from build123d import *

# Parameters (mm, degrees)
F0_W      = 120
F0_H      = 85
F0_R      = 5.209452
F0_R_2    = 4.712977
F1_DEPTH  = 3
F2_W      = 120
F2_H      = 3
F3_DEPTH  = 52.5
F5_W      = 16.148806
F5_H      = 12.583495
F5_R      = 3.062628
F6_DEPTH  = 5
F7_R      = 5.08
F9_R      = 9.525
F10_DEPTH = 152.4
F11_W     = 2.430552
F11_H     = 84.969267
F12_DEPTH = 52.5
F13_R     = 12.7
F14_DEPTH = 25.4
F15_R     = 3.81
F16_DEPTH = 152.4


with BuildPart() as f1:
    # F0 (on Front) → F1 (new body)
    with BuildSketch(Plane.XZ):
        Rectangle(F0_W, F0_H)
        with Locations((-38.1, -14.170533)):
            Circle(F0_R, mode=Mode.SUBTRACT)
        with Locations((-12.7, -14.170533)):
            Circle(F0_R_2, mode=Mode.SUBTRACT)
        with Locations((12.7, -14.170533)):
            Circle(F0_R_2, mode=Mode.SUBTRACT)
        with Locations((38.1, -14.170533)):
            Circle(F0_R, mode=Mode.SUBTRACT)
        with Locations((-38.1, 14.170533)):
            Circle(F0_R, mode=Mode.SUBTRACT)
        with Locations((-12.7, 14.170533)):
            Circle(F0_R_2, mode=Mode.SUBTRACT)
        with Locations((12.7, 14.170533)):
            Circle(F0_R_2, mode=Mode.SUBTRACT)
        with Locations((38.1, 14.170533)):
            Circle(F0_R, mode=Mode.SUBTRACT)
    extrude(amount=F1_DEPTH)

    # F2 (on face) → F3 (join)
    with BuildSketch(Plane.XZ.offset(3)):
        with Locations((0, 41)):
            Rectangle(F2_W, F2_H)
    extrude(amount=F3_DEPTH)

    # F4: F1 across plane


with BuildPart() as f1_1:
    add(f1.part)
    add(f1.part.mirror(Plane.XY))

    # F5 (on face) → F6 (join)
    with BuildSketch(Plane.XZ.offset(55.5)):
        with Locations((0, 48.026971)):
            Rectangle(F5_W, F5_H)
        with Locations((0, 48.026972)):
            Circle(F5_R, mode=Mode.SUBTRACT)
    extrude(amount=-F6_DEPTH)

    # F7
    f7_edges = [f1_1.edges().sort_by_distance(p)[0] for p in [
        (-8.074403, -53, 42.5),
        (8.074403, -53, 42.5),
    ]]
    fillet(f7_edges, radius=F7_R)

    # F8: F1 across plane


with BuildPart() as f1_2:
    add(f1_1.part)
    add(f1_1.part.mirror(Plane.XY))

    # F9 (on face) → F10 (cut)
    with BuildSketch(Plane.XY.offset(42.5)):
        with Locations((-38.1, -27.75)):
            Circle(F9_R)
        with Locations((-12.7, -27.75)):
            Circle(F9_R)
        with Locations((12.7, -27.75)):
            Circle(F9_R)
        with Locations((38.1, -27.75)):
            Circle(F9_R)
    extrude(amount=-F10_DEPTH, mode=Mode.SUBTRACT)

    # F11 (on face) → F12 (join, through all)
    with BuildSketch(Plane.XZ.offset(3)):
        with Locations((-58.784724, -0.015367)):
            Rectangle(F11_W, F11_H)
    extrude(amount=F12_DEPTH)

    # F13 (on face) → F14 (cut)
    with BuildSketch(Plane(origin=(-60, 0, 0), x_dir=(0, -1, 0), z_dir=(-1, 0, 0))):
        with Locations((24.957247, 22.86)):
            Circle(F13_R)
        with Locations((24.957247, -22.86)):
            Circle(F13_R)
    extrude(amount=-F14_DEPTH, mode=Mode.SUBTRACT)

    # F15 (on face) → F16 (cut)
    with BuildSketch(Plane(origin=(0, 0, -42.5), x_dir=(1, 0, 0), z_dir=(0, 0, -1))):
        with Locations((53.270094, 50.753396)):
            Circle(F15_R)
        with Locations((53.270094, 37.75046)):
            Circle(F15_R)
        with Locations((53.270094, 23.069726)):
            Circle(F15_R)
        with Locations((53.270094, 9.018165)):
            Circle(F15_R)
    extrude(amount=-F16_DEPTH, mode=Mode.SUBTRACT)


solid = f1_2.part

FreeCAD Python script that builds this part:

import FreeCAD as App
import Part
import Sketcher
from FreeCAD import Vector
Q = App.Units.Quantity


def edges_at(feature, points):
    """Names of the edges that pass closest to the given points."""
    edges = feature.Shape.Edges
    near = lambda p: min(range(len(edges)), key=lambda i: edges[i].distToShape(Part.Vertex(*p))[0])
    return sorted({f"Edge{near(p) + 1}" for p in points})


def add_polygon(sketch, points):
    """Adds a closed chain of lines whose ends are joined by coincident constraints."""
    first, n = sketch.GeometryCount, len(points)
    for a, b in zip(points, points[1:] + points[:1]):
        sketch.addGeometry(Part.LineSegment(App.Vector(*a, 0), App.Vector(*b, 0)), False)
    for i in range(n):
        sketch.addConstraint(Sketcher.Constraint("Coincident", first + i, 2, first + (i + 1) % n, 1))

doc = App.newDocument("Part")
params = doc.addObject("Spreadsheet::Sheet", "Params")
for row, (alias, value) in enumerate([
    ("sketch1_width", "120 mm"),
    ("sketch1_height", "85 mm"),
    ("pad1_length", "3 mm"),
    ("sketch2_width", "120 mm"),
    ("sketch2_height", "3 mm"),
    ("pad2_length", "52.5 mm"),
    ("pad3_length", "5 mm"),
    ("fillet_radius", "5.08 mm"),
    ("sketch4_diameter", "19.05 mm"),
    ("pocket1_length", "152.4 mm"),
    ("pad4_length", "52.5 mm"),
    ("sketch6_diameter", "25.4 mm"),
    ("pocket2_length", "25.4 mm"),
    ("sketch7_diameter", "7.62 mm"),
    ("pocket3_length", "152.4 mm"),
], start=1):
    params.set(f"A{row}", alias)
    params.set(f"B{row}", "=" + value)
    params.setAlias(f"B{row}", alias)

body = doc.addObject("PartDesign::Body", "Body")

sketch1 = doc.addObject("Sketcher::SketchObject", "Sketch")
body.addObject(sketch1)
sketch1.AttachmentSupport = (doc.XZ_Plane, [""])
sketch1.MapMode = "FlatFace"
add_polygon(sketch1, [(-60, 42.5), (-60, -42.5), (60, -42.5), (60, 42.5)])
sketch1.addGeometry(Part.Circle(Vector(-38.1, -14.2, 0), Vector(0, 0, 1), 5.2), False)
sketch1.addGeometry(Part.Circle(Vector(-12.7, -14.2, 0), Vector(0, 0, 1), 4.7), False)
sketch1.addGeometry(Part.Circle(Vector(12.7, -14.2, 0), Vector(0, 0, 1), 4.7), False)
sketch1.addGeometry(Part.Circle(Vector(38.1, -14.2, 0), Vector(0, 0, 1), 5.2), False)
sketch1.addGeometry(Part.Circle(Vector(-38.1, 14.2, 0), Vector(0, 0, 1), 5.2), False)
sketch1.addGeometry(Part.Circle(Vector(-12.7, 14.2, 0), Vector(0, 0, 1), 4.7), False)
sketch1.addGeometry(Part.Circle(Vector(12.7, 14.2, 0), Vector(0, 0, 1), 4.7), False)
sketch1.addGeometry(Part.Circle(Vector(38.1, 14.2, 0), Vector(0, 0, 1), 5.2), False)
sketch1.addConstraint([
    Sketcher.Constraint("Vertical", 0),
    Sketcher.Constraint("Horizontal", 1),
    Sketcher.Constraint("Vertical", 2),
    Sketcher.Constraint("Horizontal", 3),
    Sketcher.Constraint("Equal", 5, 6),
    Sketcher.Constraint("Equal", 4, 7),
    Sketcher.Constraint("Equal", 7, 8),
    Sketcher.Constraint("Equal", 6, 9),
    Sketcher.Constraint("Equal", 9, 10),
    Sketcher.Constraint("Equal", 8, 11),
    Sketcher.Constraint("Symmetric", 7, 3, 8, 3, -1, 1),
    Sketcher.Constraint("Symmetric", 6, 3, 9, 3, -1, 1),
    Sketcher.Constraint("Symmetric", 5, 3, 10, 3, -1, 1),
    Sketcher.Constraint("Symmetric", 4, 3, 11, 3, -1, 1),
    Sketcher.Constraint("Symmetric", 0, 2, 2, 2, -1, 1),
    Sketcher.Constraint("Symmetric", 5, 3, 6, 3, -2),
    Sketcher.Constraint("Symmetric", 4, 3, 7, 3, -2),
    Sketcher.Constraint("Horizontal", 4, 3, 5, 3),
    Sketcher.Constraint("DistanceX", 1, 1, 1, 2, Q("120 mm")),
    Sketcher.Constraint("DistanceY", 0, 2, 0, 1, Q("85 mm")),
    Sketcher.Constraint("DistanceX", 4, 3, -1, 1, Q("38.1 mm")),
    Sketcher.Constraint("DistanceX", 5, 3, -1, 1, Q("12.7 mm")),
    Sketcher.Constraint("Diameter", 4, Q("10.418904 mm")),
    Sketcher.Constraint("Diameter", 5, Q("9.425954 mm")),
    Sketcher.Constraint("DistanceY", 4, 3, -1, 1, Q("14.170533 mm")),
])
sketch1.setExpression("Constraints[22]", "Params.sketch1_width")
sketch1.setExpression("Constraints[23]", "Params.sketch1_height")
pad1 = doc.addObject("PartDesign::Pad", "Pad")
body.addObject(pad1)
pad1.Profile = sketch1
pad1.setExpression("Length", "Params.pad1_length")

sketch2 = doc.addObject("Sketcher::SketchObject", "Sketch001")
body.addObject(sketch2)
sketch2.AttachmentSupport = (doc.XZ_Plane, [""])
sketch2.MapMode = "FlatFace"
sketch2.AttachmentOffset = App.Placement(Vector(0, 0, 3), App.Rotation())
add_polygon(sketch2, [(-60, 42.5), (-60, 39.5), (60, 39.5), (60, 42.5)])
sketch2.addConstraint([
    Sketcher.Constraint("Vertical", 0),
    Sketcher.Constraint("Horizontal", 1),
    Sketcher.Constraint("Vertical", 2),
    Sketcher.Constraint("Horizontal", 3),
    Sketcher.Constraint("DistanceX", 1, 1, 1, 2, Q("120 mm")),
    Sketcher.Constraint("DistanceY", 0, 2, 0, 1, Q("3 mm")),
    Sketcher.Constraint("DistanceX", 0, 2, -1, 1, Q("60 mm")),
    Sketcher.Constraint("DistanceY", -1, 1, 0, 2, Q("39.5 mm")),
])
sketch2.setExpression("Constraints[8]", "Params.sketch2_width")
sketch2.setExpression("Constraints[9]", "Params.sketch2_height")
pad2 = doc.addObject("PartDesign::Pad", "Pad001")
body.addObject(pad2)
pad2.Profile = sketch2
pad2.setExpression("Length", "Params.pad2_length")
body2 = doc.addObject("PartDesign::Body", "Body001")
doc.recompute()

body2.BaseFeature = body
doc.recompute()

mirroring = doc.addObject("Part::Mirroring", "Mirroring")
mirroring.Source = body
mirroring.Base = Vector(0, 0, 0)
mirroring.Normal = Vector(0, 0, 1)
body3 = doc.addObject("PartDesign::Body", "Body002")
body3.BaseFeature = mirroring
boolean = doc.addObject("PartDesign::Boolean", "Boolean")
body2.addObject(boolean)
boolean.Type = "Fuse"
boolean.addObjects([body3])
doc.recompute()

sketch3 = doc.addObject("Sketcher::SketchObject", "Sketch002")
body2.addObject(sketch3)
sketch3.AttachmentSupport = (doc.getObject("XZ_Plane001"), [""])
sketch3.MapMode = "FlatFace"
sketch3.AttachmentOffset = App.Placement(Vector(0, 0, 55.5), App.Rotation())
add_polygon(sketch3, [(-8.1, 54.3), (-8.1, 41.7), (8.1, 41.7), (8.1, 54.3)])
sketch3.addGeometry(Part.Circle(Vector(0, 48, 0), Vector(0, 0, 1), 3.1), False)
sketch3.addConstraint([
    Sketcher.Constraint("Vertical", 0),
    Sketcher.Constraint("Horizontal", 1),
    Sketcher.Constraint("Vertical", 2),
    Sketcher.Constraint("Horizontal", 3),
    Sketcher.Constraint("PointOnObject", 4, 3, -2),
    Sketcher.Constraint("Diameter", 4, Q("6.125256 mm")),
    Sketcher.Constraint("DistanceX", 1, 1, 1, 2, Q("16.148806 mm")),
    Sketcher.Constraint("DistanceY", 0, 2, 0, 1, Q("12.583495 mm")),
    Sketcher.Constraint("DistanceY", -1, 1, 2, 2, Q("54.318719 mm")),
    Sketcher.Constraint("DistanceY", 0, 2, 4, 3, Q("6.291749 mm")),
    Sketcher.Constraint("DistanceX", 0, 2, -1, 1, Q("8.074403 mm")),
])
pad3 = doc.addObject("PartDesign::Pad", "Pad002")
body2.addObject(pad3)
pad3.Profile = sketch3
pad3.setExpression("Length", "Params.pad3_length")
pad3.Reversed = True
doc.recompute()

fillet = doc.addObject("PartDesign::Fillet", "Fillet")
body2.addObject(fillet)
fillet.Base = (pad3, edges_at(pad3, [(-8.074, -53, 42.5), (8.074, -53, 42.5)]))
fillet.setExpression("Radius", "Params.fillet_radius")
body4 = doc.addObject("PartDesign::Body", "Body003")
doc.recompute()

body4.BaseFeature = body2
doc.recompute()

mirroring2 = doc.addObject("Part::Mirroring", "Mirroring001")
mirroring2.Source = body2
mirroring2.Base = Vector(0, 0, 0)
mirroring2.Normal = Vector(0, 0, 1)
body5 = doc.addObject("PartDesign::Body", "Body004")
body5.BaseFeature = mirroring2
boolean2 = doc.addObject("PartDesign::Boolean", "Boolean001")
body4.addObject(boolean2)
boolean2.Type = "Fuse"
boolean2.addObjects([body5])
doc.recompute()

sketch4 = doc.addObject("Sketcher::SketchObject", "Sketch003")
body4.addObject(sketch4)
sketch4.AttachmentSupport = (doc.getObject("XY_Plane003"), [""])
sketch4.MapMode = "FlatFace"
sketch4.AttachmentOffset = App.Placement(Vector(0, 0, 42.5), App.Rotation())
sketch4.addGeometry([
    Part.Circle(Vector(-38, -28, 0), Vector(0, 0, 1), 10),
    Part.Circle(Vector(-13, -28, 0), Vector(0, 0, 1), 10),
    Part.Circle(Vector(13, -28, 0), Vector(0, 0, 1), 10),
    Part.Circle(Vector(38, -28, 0), Vector(0, 0, 1), 10),
], False)
sketch4.addConstraint([
    Sketcher.Constraint("Equal", 0, 1),
    Sketcher.Constraint("Equal", 1, 2),
    Sketcher.Constraint("Equal", 2, 3),
    Sketcher.Constraint("Symmetric", 1, 3, 2, 3, -2),
    Sketcher.Constraint("Symmetric", 0, 3, 3, 3, -2),
    Sketcher.Constraint("Horizontal", 0, 3, 1, 3),
    Sketcher.Constraint("Diameter", 0, Q("19.05 mm")),
    Sketcher.Constraint("DistanceX", 0, 3, -1, 1, Q("38.1 mm")),
    Sketcher.Constraint("DistanceX", 1, 3, -1, 1, Q("12.7 mm")),
    Sketcher.Constraint("DistanceY", 0, 3, -1, 1, Q("27.75 mm")),
])
sketch4.setExpression("Constraints[6]", "Params.sketch4_diameter")
pocket1 = doc.addObject("PartDesign::Pocket", "Pocket")
body4.addObject(pocket1)
pocket1.Profile = sketch4
pocket1.setExpression("Length", "Params.pocket1_length")

sketch5 = doc.addObject("Sketcher::SketchObject", "Sketch004")
body4.addObject(sketch5)
sketch5.AttachmentSupport = (doc.getObject("XZ_Plane003"), [""])
sketch5.MapMode = "FlatFace"
sketch5.AttachmentOffset = App.Placement(Vector(0, 0, 3), App.Rotation())
add_polygon(sketch5, [(-60, 42.5), (-60, -42.5), (-57.6, -42.5), (-57.6, 42.5)])
sketch5.addConstraint([
    Sketcher.Constraint("Vertical", 0),
    Sketcher.Constraint("Horizontal", 1),
    Sketcher.Constraint("Vertical", 2),
    Sketcher.Constraint("Horizontal", 3),
    Sketcher.Constraint("DistanceX", 0, 2, -1, 1, Q("60 mm")),
    Sketcher.Constraint("DistanceY", 0, 2, -1, 1, Q("42.5 mm")),
    Sketcher.Constraint("DistanceX", 1, 1, 1, 2, Q("2.430552 mm")),
    Sketcher.Constraint("DistanceY", 0, 2, 0, 1, Q("84.969267 mm")),
])
pad4 = doc.addObject("PartDesign::Pad", "Pad003")
body4.addObject(pad4)
pad4.Profile = sketch5
pad4.setExpression("Length", "Params.pad4_length")

sketch6 = doc.addObject("Sketcher::SketchObject", "Sketch005")
body4.addObject(sketch6)
sketch6.AttachmentSupport = (doc.getObject("YZ_Plane003"), [""])
sketch6.MapMode = "FlatFace"
sketch6.AttachmentOffset = App.Placement(Vector(0, 0, -60), App.Rotation())
sketch6.addGeometry([
    Part.Circle(Vector(-25, 23, 0), Vector(0, 0, 1), 13),
    Part.Circle(Vector(-25, -23, 0), Vector(0, 0, 1), 13),
], False)
sketch6.addConstraint([
    Sketcher.Constraint("Equal", 0, 1),
    Sketcher.Constraint("Symmetric", 0, 3, 1, 3, -1),
    Sketcher.Constraint("Diameter", 0, Q("25.4 mm")),
    Sketcher.Constraint("DistanceY", -1, 1, 0, 3, Q("22.86 mm")),
    Sketcher.Constraint("DistanceX", 0, 3, -1, 1, Q("24.957247 mm")),
])
sketch6.setExpression("Constraints[2]", "Params.sketch6_diameter")
pocket2 = doc.addObject("PartDesign::Pocket", "Pocket001")
body4.addObject(pocket2)
pocket2.Profile = sketch6
pocket2.setExpression("Length", "Params.pocket2_length")
pocket2.Reversed = True

sketch7 = doc.addObject("Sketcher::SketchObject", "Sketch006")
body4.addObject(sketch7)
sketch7.AttachmentSupport = (doc.getObject("XY_Plane003"), [""])
sketch7.MapMode = "FlatFace"
sketch7.AttachmentOffset = App.Placement(Vector(0, 0, -42.5), App.Rotation())
sketch7.addGeometry([
    Part.Circle(Vector(53.3, -50.8, 0), Vector(0, 0, 1), 3.8),
    Part.Circle(Vector(53.3, -37.8, 0), Vector(0, 0, 1), 3.8),
    Part.Circle(Vector(53.3, -23.1, 0), Vector(0, 0, 1), 3.8),
    Part.Circle(Vector(53.3, -9, 0), Vector(0, 0, 1), 3.8),
], False)
sketch7.addConstraint([
    Sketcher.Constraint("Equal", 0, 1),
    Sketcher.Constraint("Equal", 1, 2),
    Sketcher.Constraint("Equal", 2, 3),
    Sketcher.Constraint("Vertical", 0, 3, 1, 3),
    Sketcher.Constraint("Vertical", 1, 3, 2, 3),
    Sketcher.Constraint("Vertical", 2, 3, 3, 3),
    Sketcher.Constraint("Diameter", 0, Q("7.62 mm")),
    Sketcher.Constraint("DistanceY", 1, 3, -1, 1, Q("37.75046 mm")),
    Sketcher.Constraint("DistanceY", 0, 3, 2, 3, Q("27.68367 mm")),
    Sketcher.Constraint("DistanceY", 2, 3, 3, 3, Q("14.051561 mm")),
    Sketcher.Constraint("DistanceX", -1, 1, 0, 3, Q("53.270094 mm")),
    Sketcher.Constraint("DistanceY", 0, 3, -1, 1, Q("50.753396 mm")),
])
sketch7.setExpression("Constraints[6]", "Params.sketch7_diameter")
pocket3 = doc.addObject("PartDesign::Pocket", "Pocket002")
body4.addObject(pocket3)
pocket3.Profile = sketch7
pocket3.setExpression("Length", "Params.pocket3_length")
pocket3.Reversed = True
mirroring.Visibility = False
mirroring2.Visibility = False

doc.recompute()
